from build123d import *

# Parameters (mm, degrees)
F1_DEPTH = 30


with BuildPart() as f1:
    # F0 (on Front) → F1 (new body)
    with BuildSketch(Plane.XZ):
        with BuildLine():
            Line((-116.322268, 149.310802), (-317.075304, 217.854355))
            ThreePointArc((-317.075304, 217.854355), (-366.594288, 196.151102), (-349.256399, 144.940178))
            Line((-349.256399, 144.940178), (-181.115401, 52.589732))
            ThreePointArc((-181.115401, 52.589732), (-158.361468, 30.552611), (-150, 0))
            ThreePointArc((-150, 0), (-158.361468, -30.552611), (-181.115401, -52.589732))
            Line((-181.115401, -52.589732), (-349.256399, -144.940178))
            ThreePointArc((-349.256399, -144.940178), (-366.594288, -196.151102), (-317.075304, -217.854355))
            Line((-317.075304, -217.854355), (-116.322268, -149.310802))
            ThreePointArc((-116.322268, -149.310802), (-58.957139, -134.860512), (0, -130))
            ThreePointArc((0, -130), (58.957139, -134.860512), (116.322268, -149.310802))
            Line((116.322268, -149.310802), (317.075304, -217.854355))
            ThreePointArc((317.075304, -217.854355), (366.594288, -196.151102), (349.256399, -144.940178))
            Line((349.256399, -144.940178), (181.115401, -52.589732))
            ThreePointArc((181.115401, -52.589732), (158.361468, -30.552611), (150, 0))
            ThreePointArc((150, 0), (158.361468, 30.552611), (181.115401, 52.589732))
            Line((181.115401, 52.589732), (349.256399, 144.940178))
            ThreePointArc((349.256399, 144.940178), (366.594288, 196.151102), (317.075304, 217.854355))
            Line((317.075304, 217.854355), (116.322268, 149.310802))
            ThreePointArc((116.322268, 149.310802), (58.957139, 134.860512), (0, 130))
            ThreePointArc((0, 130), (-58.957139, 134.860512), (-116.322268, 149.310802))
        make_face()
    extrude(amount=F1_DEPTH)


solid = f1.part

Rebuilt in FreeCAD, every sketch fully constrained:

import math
import FreeCAD as App
import Part
import Sketcher
from FreeCAD import Vector

doc = App.newDocument("Part")
params = doc.addObject("Spreadsheet::Sheet", "Params")
for row, (alias, value) in enumerate([
    ("sketch1_radius", "40 mm"),
    ("pad1_length", "30 mm"),
], start=1):
    params.set(f"A{row}", alias)
    params.set(f"B{row}", "=" + value)
    params.setAlias(f"B{row}", alias)

body = doc.addObject("PartDesign::Body", "Body")

sketch1 = body.newObject("Sketcher::SketchObject", "Sketch")
sketch1.AttachmentSupport = (doc.getObject("XZ_Plane"), [""])
sketch1.MapMode = "FlatFace"
sketch1.addGeometry([
    Part.LineSegment(Vector(-116.322268, 149.310802, 0), Vector(-317.075304, 217.854355, 0)),
    Part.ArcOfCircle(Part.Circle(Vector(-330, 180, 0), Vector(0, 0, 1), 40), math.radians(71.148442), math.radians(241.22247)),
    Part.LineSegment(Vector(-349.256399, 144.940178, 0), Vector(-181.115401, 52.589732, 0)),
    Part.ArcOfCircle(Part.Circle(Vector(-209.999998, 0.000001, 0), Vector(0, 0, 1), 59.999998), math.radians(-0.000001), math.radians(61.22247)),
    Part.ArcOfCircle(Part.Circle(Vector(-209.999998, -0.000001, 0), Vector(0, 0, 1), 59.999998), math.radians(-61.22247), math.radians(0.000001)),
    Part.LineSegment(Vector(-181.115401, -52.589732, 0), Vector(-349.256399, -144.940178, 0)),
    Part.ArcOfCircle(Part.Circle(Vector(-330, -180, 0), Vector(0, 0, 1), 40), math.radians(118.77753), math.radians(288.851558)),
    Part.LineSegment(Vector(-317.075304, -217.854355, 0), Vector(-116.322268, -149.310802, 0)),
    Part.ArcOfCircle(Part.Circle(Vector(-0.000004, -489.999965, 0), Vector(0, 0, 1), 359.999965), math.radians(89.999999), math.radians(108.851559)),
    Part.ArcOfCircle(Part.Circle(Vector(0.000004, -489.999965, 0), Vector(0, 0, 1), 359.999965), math.radians(71.148441), math.radians(90.000001)),
    Part.LineSegment(Vector(116.322268, -149.310802, 0), Vector(317.075304, -217.854355, 0)),
    Part.ArcOfCircle(Part.Circle(Vector(330, -180, 0), Vector(0, 0, 1), 40), math.radians(-108.851558), math.radians(61.22247)),
    Part.LineSegment(Vector(349.256399, -144.940178, 0), Vector(181.115401, -52.589732, 0)),
    Part.ArcOfCircle(Part.Circle(Vector(209.999998, -0.000001, 0), Vector(0, 0, 1), 59.999998), math.radians(179.999999), math.radians(241.22247)),
    Part.ArcOfCircle(Part.Circle(Vector(209.999998, 0.000001, 0), Vector(0, 0, 1), 59.999998), math.radians(118.77753), math.radians(180.000001)),
    Part.LineSegment(Vector(181.115401, 52.589732, 0), Vector(349.256399, 144.940178, 0)),
    Part.ArcOfCircle(Part.Circle(Vector(330, 180, 0), Vector(0, 0, 1), 40), math.radians(-61.22247), math.radians(108.851558)),
    Part.LineSegment(Vector(317.075304, 217.854355, 0), Vector(116.322268, 149.310802, 0)),
    Part.ArcOfCircle(Part.Circle(Vector(0.000004, 489.999965, 0), Vector(0, 0, 1), 359.999965), math.radians(-90.000001), math.radians(-71.148441)),
    Part.ArcOfCircle(Part.Circle(Vector(-0.000004, 489.999965, 0), Vector(0, 0, 1), 359.999965), math.radians(-108.851559), math.radians(-89.999999)),
], False)
sketch1.addConstraint([
    Sketcher.Constraint("Tangent", 0, 2, 1, 1),
    Sketcher.Constraint("Tangent", 1, 2, 2, 1),
    Sketcher.Constraint("Tangent", 2, 2, 3, 2),
    Sketcher.Constraint("Tangent", 3, 1, 4, 2),
    Sketcher.Constraint("Tangent", 4, 1, 5, 1),
    Sketcher.Constraint("Tangent", 5, 2, 6, 1),
    Sketcher.Constraint("Tangent", 6, 2, 7, 1),
    Sketcher.Constraint("Tangent", 7, 2, 8, 2),
    Sketcher.Constraint("Tangent", 8, 1, 9, 2),
    Sketcher.Constraint("Tangent", 9, 1, 10, 1),
    Sketcher.Constraint("Tangent", 10, 2, 11, 1),
    Sketcher.Constraint("Tangent", 11, 2, 12, 1),
    Sketcher.Constraint("Tangent", 12, 2, 13, 2),
    Sketcher.Constraint("Tangent", 13, 1, 14, 2),
    Sketcher.Constraint("Tangent", 14, 1, 15, 1),
    Sketcher.Constraint("Tangent", 15, 2, 16, 1),
    Sketcher.Constraint("Tangent", 16, 2, 17, 1),
    Sketcher.Constraint("Tangent", 17, 2, 18, 2),
    Sketcher.Constraint("Tangent", 18, 1, 19, 2),
    Sketcher.Constraint("Tangent", 19, 1, 0, 1),
    Sketcher.Constraint("Equal", 3, 4),
    Sketcher.Constraint("Equal", 1, 6),
    Sketcher.Constraint("Equal", 8, 9),
    Sketcher.Constraint("Equal", 6, 11),
    Sketcher.Constraint("Equal", 4, 13),
    Sketcher.Constraint("Equal", 13, 14),
    Sketcher.Constraint("Equal", 11, 16),
    Sketcher.Constraint("Equal", 9, 18),
    Sketcher.Constraint("Equal", 18, 19),
    Sketcher.Constraint("Symmetric", 1, 3, 11, 3, -1, 1),
    Sketcher.Constraint("Symmetric", 3, 3, 13, 3, -1, 1),
    Sketcher.Constraint("Symmetric", 6, 3, 16, 3, -1, 1),
    Sketcher.Constraint("Symmetric", 8, 3, 18, 3, -1, 1),
    Sketcher.Constraint("Symmetric", 6, 3, 11, 3, -2),
    Sketcher.Constraint("PointOnObject", 3, 3, -1),
    Sketcher.Constraint("PointOnObject", 3, 1, -1),
    Sketcher.Constraint("PointOnObject", 8, 1, -2),
    Sketcher.Constraint("PointOnObject", 13, 1, -1),
    Sketcher.Constraint("PointOnObject", 18, 1, -2),
    Sketcher.Constraint("Vertical", 9, 3, 18, 3),
    Sketcher.Constraint("Radius", 1, 40.0),
    Sketcher.Constraint("DistanceX", 1, 3, -1, 1, 330.0),
    Sketcher.Constraint("DistanceY", -1, 1, 1, 3, 180.0),
    Sketcher.Constraint("DistanceX", 3, 1, -1, 1, 150.0),
    Sketcher.Constraint("DistanceY", 8, 1, -1, 1, 130.0),
    Sketcher.Constraint("DistanceX", 4, 3, 11, 3, 539.999998),
    Sketcher.Constraint("Radius", 8, 359.999965),
])
sketch1.setExpression("Constraints[40]", "Params.sketch1_radius")
pad1 = body.newObject("PartDesign::Pad", "Pad")
pad1.Profile = sketch1
pad1.setExpression("Length", "Params.pad1_length")

doc.recompute()
